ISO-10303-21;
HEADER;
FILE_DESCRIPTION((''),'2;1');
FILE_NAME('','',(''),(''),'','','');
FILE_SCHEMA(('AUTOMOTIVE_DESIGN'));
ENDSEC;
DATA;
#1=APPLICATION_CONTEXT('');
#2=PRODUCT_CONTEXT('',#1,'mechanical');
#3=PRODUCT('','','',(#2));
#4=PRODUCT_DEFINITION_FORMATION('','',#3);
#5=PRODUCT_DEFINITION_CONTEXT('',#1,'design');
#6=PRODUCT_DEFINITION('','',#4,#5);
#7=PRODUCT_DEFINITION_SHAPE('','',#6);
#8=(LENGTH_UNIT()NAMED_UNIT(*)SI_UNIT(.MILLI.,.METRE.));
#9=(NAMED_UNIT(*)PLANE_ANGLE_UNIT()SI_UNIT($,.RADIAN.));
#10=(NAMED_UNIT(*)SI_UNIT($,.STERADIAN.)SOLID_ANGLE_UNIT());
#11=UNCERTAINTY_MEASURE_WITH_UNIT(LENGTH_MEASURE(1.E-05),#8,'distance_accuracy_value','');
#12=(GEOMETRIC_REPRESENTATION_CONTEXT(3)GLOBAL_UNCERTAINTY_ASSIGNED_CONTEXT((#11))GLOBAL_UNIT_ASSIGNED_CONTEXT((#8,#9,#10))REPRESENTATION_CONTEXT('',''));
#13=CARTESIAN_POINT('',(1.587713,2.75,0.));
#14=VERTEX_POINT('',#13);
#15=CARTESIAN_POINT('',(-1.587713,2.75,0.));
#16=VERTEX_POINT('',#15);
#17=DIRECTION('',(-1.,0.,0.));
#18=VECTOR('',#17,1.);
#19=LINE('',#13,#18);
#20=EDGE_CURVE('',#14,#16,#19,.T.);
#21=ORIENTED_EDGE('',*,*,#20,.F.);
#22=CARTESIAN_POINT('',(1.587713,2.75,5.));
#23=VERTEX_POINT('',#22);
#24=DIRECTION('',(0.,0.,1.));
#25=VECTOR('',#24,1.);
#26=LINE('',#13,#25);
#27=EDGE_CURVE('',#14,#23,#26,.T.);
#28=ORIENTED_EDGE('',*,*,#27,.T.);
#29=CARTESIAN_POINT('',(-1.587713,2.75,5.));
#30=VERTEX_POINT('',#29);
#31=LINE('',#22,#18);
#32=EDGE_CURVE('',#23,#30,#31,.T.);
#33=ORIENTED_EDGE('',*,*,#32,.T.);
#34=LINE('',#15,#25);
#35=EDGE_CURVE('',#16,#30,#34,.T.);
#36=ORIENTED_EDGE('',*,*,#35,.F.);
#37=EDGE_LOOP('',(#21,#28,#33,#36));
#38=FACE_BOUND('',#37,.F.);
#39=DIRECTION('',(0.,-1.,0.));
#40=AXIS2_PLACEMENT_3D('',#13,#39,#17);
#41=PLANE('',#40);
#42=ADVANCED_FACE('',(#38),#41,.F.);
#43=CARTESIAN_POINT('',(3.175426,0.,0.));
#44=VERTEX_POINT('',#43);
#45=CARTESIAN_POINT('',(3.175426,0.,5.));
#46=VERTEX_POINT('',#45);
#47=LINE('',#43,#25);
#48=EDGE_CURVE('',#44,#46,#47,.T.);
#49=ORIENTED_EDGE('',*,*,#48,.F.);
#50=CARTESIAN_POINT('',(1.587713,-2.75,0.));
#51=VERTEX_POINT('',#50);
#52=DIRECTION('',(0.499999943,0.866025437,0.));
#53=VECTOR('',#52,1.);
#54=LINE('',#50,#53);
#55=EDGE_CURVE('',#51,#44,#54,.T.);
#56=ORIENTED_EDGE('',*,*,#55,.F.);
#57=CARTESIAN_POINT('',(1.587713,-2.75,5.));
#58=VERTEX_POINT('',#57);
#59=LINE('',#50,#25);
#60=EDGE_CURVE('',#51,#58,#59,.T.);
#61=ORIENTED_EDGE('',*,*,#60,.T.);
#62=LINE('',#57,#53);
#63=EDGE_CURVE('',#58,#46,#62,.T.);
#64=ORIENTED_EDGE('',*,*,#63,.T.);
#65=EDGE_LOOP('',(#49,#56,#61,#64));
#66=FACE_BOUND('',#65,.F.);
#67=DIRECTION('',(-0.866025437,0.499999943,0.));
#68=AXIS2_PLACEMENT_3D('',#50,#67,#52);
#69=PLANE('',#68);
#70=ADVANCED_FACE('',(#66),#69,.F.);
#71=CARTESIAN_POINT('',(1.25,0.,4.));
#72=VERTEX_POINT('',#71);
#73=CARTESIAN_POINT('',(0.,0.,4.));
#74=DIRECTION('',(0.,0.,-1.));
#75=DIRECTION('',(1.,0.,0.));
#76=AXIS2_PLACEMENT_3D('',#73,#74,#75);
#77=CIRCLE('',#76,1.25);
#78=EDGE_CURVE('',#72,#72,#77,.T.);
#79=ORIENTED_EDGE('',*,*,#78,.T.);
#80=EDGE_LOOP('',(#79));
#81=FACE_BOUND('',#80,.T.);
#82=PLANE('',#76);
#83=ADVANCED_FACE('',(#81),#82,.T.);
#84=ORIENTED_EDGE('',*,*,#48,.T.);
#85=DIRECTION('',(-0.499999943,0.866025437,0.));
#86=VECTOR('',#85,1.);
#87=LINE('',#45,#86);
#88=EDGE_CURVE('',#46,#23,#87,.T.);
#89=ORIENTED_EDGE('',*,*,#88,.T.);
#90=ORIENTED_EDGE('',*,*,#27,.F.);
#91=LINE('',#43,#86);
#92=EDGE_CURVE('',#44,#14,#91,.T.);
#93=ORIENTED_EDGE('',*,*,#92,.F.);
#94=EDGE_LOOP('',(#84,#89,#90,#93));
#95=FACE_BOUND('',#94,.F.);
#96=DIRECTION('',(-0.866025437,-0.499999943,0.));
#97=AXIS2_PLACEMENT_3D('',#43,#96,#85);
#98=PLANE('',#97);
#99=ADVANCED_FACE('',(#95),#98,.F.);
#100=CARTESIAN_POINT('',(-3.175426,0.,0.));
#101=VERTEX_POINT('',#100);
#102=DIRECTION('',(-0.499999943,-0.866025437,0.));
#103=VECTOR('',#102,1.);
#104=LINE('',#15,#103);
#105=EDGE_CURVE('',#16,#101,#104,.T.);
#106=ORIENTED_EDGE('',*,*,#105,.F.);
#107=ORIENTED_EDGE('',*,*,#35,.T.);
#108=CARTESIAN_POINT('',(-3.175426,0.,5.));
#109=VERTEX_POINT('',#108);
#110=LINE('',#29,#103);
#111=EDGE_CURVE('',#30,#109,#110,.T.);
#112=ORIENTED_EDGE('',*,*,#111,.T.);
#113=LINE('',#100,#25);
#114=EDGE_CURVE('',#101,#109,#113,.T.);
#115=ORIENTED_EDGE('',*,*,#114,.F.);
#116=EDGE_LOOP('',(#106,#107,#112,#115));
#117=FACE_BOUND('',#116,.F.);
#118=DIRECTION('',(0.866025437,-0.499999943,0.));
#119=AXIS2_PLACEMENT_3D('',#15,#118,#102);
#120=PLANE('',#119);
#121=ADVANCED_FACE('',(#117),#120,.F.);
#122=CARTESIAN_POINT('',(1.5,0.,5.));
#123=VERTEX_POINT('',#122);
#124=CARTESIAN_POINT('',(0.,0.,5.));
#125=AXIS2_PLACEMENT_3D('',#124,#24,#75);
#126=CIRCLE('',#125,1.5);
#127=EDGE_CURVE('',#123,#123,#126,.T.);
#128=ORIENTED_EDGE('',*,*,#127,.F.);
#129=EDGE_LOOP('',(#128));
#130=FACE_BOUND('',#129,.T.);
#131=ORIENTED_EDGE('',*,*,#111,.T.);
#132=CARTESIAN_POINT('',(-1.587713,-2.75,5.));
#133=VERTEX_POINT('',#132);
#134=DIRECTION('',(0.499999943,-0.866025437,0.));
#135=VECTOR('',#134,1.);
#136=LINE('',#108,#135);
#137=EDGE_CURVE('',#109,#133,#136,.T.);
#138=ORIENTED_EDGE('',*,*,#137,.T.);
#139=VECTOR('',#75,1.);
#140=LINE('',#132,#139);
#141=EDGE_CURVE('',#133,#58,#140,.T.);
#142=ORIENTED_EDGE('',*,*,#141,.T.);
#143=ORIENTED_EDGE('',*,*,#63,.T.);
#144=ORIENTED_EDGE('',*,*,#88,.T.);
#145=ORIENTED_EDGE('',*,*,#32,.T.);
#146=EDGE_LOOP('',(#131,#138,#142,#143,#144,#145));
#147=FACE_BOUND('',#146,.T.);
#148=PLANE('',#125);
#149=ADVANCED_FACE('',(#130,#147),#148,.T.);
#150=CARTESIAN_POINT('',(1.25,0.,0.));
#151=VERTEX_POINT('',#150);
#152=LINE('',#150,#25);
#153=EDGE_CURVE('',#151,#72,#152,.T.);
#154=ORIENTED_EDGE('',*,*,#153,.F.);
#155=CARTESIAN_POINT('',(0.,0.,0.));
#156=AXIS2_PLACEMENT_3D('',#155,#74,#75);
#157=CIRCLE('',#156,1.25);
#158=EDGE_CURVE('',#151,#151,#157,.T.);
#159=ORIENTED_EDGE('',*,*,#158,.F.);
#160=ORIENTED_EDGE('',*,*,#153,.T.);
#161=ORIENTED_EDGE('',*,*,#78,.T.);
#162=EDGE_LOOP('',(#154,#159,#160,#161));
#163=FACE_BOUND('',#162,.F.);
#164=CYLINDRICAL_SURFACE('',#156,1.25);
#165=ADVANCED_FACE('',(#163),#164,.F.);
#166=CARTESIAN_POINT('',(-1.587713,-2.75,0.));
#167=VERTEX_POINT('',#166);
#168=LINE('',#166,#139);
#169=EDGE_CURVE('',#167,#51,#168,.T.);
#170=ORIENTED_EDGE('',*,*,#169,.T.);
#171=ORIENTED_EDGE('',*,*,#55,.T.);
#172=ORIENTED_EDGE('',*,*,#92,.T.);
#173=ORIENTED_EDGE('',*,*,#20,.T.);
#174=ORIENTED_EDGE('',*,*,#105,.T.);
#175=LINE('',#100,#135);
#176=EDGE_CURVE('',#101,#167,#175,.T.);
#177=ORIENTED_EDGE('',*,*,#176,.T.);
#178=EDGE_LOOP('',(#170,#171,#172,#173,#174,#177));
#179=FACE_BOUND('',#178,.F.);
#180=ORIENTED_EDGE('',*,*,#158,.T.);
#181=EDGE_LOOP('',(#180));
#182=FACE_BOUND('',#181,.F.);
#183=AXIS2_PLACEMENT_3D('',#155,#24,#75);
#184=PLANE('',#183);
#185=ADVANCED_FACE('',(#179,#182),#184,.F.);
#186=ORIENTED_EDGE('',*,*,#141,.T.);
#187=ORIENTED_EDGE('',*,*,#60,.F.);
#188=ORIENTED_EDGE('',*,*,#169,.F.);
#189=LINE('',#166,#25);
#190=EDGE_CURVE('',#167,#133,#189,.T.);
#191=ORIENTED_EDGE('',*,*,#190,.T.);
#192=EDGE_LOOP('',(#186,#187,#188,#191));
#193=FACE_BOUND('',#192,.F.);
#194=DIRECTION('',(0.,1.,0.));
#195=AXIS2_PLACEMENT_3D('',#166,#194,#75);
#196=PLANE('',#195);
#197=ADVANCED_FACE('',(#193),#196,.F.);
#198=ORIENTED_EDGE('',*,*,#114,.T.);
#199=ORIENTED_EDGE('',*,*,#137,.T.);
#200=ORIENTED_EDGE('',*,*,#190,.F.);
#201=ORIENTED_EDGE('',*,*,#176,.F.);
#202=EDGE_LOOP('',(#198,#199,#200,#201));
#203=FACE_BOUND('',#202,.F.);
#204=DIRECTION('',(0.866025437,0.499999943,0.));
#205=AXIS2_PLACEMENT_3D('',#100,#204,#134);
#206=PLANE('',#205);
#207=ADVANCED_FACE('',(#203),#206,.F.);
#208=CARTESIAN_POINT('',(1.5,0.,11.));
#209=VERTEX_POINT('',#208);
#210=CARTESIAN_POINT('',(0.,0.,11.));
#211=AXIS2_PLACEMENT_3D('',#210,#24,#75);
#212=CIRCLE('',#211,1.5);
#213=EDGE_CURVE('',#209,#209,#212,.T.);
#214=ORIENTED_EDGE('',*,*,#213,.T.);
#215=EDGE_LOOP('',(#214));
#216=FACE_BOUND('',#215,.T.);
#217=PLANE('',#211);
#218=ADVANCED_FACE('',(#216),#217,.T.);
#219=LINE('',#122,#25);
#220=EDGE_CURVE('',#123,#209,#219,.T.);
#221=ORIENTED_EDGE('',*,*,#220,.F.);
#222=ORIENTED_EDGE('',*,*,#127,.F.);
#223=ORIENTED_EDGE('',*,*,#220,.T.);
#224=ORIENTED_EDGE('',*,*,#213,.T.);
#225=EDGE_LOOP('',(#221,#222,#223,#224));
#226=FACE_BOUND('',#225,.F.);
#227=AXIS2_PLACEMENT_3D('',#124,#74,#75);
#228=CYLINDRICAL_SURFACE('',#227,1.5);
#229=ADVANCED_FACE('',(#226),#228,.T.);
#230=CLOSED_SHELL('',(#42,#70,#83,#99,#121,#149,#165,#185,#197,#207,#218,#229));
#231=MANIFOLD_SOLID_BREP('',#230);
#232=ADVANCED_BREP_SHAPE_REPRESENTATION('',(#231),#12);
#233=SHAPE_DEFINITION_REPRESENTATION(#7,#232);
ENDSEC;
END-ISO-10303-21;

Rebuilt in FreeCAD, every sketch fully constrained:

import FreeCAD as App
import Part
import Sketcher
Q = App.Units.Quantity

doc = App.newDocument("Part")
body = doc.addObject("PartDesign::Body", "Body")

# Sketch on XY plane
sketch1 = body.newObject("Sketcher::SketchObject", "Sketch")
sketch1.AttachmentSupport = (doc.getObject("XY_Plane"), [""])
sketch1.MapMode = "FlatFace"
sketch1.addGeometry(Part.LineSegment(App.Vector(1.6, 2.8, 0), App.Vector(-1.6, 2.8, 0)), False)
sketch1.addGeometry(Part.LineSegment(App.Vector(-1.6, 2.8, 0), App.Vector(-3.2, 0, 0)), False)
sketch1.addGeometry(Part.LineSegment(App.Vector(-3.2, 0, 0), App.Vector(-1.6, -2.8, 0)), False)
sketch1.addGeometry(Part.LineSegment(App.Vector(-1.6, -2.8, 0), App.Vector(1.6, -2.8, 0)), False)
sketch1.addGeometry(Part.LineSegment(App.Vector(1.6, -2.8, 0), App.Vector(3.2, 0, 0)), False)
sketch1.addGeometry(Part.LineSegment(App.Vector(3.2, 0, 0), App.Vector(1.6, 2.8, 0)), False)
sketch1.addConstraint(Sketcher.Constraint("Coincident", 0, 2, 1, 1))
sketch1.addConstraint(Sketcher.Constraint("Coincident", 1, 2, 2, 1))
sketch1.addConstraint(Sketcher.Constraint("Coincident", 2, 2, 3, 1))
sketch1.addConstraint(Sketcher.Constraint("Coincident", 3, 2, 4, 1))
sketch1.addConstraint(Sketcher.Constraint("Coincident", 4, 2, 5, 1))
sketch1.addConstraint(Sketcher.Constraint("Coincident", 5, 2, 0, 1))
sketch1.addConstraint(Sketcher.Constraint("Horizontal", 0))
sketch1.addConstraint(Sketcher.Constraint("Horizontal", 3))
sketch1.addConstraint(Sketcher.Constraint("Symmetric", 0, 2, 3, 2, -1, 1))
sketch1.addConstraint(Sketcher.Constraint("Symmetric", 1, 2, 4, 2, -1, 1))
sketch1.addConstraint(Sketcher.Constraint("PointOnObject", 1, 2, -1))
sketch1.addConstraint(Sketcher.Constraint("Parallel", 2, 5))
sketch1.addConstraint(Sketcher.Constraint("Vertical", 0, 2, 2, 2))
sketch1.addConstraint(Sketcher.Constraint("Angle", 1, Q("-119.999996 deg")))
sketch1.addConstraint(Sketcher.Constraint("DistanceY", 2, 2, 0, 2, Q("5.5 mm")))
sketch1.addConstraint(Sketcher.Constraint("DistanceX", 0, 2, 0, 1, Q("3.175426 mm")))
pad1 = body.newObject("PartDesign::Pad", "Pad")
pad1.Profile = sketch1
pad1.Length = 5

# Sketch on XY plane
sketch2 = body.newObject("Sketcher::SketchObject", "Sketch001")
sketch2.AttachmentSupport = (doc.getObject("XY_Plane"), [""])
sketch2.MapMode = "FlatFace"
sketch2.AttachmentOffset = App.Placement(App.Vector(0, 0, 5), App.Rotation())
sketch2.addGeometry(Part.Circle(App.Vector(0, 0, 0), App.Vector(0, 0, 1), 1.5), False)
sketch2.addConstraint(Sketcher.Constraint("Coincident", 0, 3, -1, 1))
sketch2.addConstraint(Sketcher.Constraint("Diameter", 0, Q("3 mm")))
pad2 = body.newObject("PartDesign::Pad", "Pad001")
pad2.Profile = sketch2
pad2.Length = 6

# Sketch on XY plane
sketch3 = body.newObject("Sketcher::SketchObject", "Sketch002")
sketch3.AttachmentSupport = (doc.getObject("XY_Plane"), [""])
sketch3.MapMode = "FlatFace"
sketch3.addGeometry(Part.Circle(App.Vector(0, 0, 0), App.Vector(0, 0, 1), 1.2), False)
sketch3.addConstraint(Sketcher.Constraint("Coincident", 0, 3, -1, 1))
sketch3.addConstraint(Sketcher.Constraint("Diameter", 0, Q("2.5 mm")))
pocket1 = body.newObject("PartDesign::Pocket", "Pocket")
pocket1.Profile = sketch3
pocket1.Length = 4
pocket1.Reversed = True

doc.recompute()
